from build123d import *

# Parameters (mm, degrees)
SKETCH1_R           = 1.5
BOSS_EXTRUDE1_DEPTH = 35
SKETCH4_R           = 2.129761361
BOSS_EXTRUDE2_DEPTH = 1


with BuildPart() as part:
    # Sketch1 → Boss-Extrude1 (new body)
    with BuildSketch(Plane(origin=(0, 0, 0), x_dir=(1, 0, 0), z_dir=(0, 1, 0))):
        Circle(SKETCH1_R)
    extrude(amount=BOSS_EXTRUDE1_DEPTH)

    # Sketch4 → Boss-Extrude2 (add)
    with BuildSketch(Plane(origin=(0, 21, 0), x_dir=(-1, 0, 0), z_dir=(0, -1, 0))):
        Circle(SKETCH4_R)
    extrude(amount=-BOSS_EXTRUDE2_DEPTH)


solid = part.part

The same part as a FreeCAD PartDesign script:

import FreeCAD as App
import Part
import Sketcher

V = App.Vector

doc = App.newDocument("Part")
body = doc.addObject("PartDesign::Body", "Body")

sketch1 = body.newObject("Sketcher::SketchObject", "Sketch")
sketch1.AttachmentSupport = (doc.getObject("XZ_Plane"), [""])
sketch1.MapMode = "FlatFace"
sketch1.addGeometry(Part.Circle(V(0, 0, 0), V(0, 0, 1), 1.5), False)
sketch1.addConstraint(Sketcher.Constraint("Coincident", 0, 3, -1, 1))
sketch1.addConstraint(Sketcher.Constraint("Diameter", 0, 3.0))
pad1 = body.newObject("PartDesign::Pad", "Pad")
pad1.Profile = sketch1
pad1.Length = 35
pad1.Reversed = True

sketch2 = body.newObject("Sketcher::SketchObject", "Sketch001")
sketch2.AttachmentSupport = (doc.getObject("XZ_Plane"), [""])
sketch2.MapMode = "FlatFace"
sketch2.AttachmentOffset = App.Placement(V(0, 0, -21), App.Rotation())
sketch2.addGeometry(Part.Circle(V(0, 0, 0), V(0, 0, 1), 2.1), False)
sketch2.addConstraint(Sketcher.Constraint("Coincident", 0, 3, -1, 1))
sketch2.addConstraint(Sketcher.Constraint("Diameter", 0, 4.259523))
pad2 = body.newObject("PartDesign::Pad", "Pad001")
pad2.Profile = sketch2
pad2.Length = 1
pad2.Reversed = True

doc.recompute()
